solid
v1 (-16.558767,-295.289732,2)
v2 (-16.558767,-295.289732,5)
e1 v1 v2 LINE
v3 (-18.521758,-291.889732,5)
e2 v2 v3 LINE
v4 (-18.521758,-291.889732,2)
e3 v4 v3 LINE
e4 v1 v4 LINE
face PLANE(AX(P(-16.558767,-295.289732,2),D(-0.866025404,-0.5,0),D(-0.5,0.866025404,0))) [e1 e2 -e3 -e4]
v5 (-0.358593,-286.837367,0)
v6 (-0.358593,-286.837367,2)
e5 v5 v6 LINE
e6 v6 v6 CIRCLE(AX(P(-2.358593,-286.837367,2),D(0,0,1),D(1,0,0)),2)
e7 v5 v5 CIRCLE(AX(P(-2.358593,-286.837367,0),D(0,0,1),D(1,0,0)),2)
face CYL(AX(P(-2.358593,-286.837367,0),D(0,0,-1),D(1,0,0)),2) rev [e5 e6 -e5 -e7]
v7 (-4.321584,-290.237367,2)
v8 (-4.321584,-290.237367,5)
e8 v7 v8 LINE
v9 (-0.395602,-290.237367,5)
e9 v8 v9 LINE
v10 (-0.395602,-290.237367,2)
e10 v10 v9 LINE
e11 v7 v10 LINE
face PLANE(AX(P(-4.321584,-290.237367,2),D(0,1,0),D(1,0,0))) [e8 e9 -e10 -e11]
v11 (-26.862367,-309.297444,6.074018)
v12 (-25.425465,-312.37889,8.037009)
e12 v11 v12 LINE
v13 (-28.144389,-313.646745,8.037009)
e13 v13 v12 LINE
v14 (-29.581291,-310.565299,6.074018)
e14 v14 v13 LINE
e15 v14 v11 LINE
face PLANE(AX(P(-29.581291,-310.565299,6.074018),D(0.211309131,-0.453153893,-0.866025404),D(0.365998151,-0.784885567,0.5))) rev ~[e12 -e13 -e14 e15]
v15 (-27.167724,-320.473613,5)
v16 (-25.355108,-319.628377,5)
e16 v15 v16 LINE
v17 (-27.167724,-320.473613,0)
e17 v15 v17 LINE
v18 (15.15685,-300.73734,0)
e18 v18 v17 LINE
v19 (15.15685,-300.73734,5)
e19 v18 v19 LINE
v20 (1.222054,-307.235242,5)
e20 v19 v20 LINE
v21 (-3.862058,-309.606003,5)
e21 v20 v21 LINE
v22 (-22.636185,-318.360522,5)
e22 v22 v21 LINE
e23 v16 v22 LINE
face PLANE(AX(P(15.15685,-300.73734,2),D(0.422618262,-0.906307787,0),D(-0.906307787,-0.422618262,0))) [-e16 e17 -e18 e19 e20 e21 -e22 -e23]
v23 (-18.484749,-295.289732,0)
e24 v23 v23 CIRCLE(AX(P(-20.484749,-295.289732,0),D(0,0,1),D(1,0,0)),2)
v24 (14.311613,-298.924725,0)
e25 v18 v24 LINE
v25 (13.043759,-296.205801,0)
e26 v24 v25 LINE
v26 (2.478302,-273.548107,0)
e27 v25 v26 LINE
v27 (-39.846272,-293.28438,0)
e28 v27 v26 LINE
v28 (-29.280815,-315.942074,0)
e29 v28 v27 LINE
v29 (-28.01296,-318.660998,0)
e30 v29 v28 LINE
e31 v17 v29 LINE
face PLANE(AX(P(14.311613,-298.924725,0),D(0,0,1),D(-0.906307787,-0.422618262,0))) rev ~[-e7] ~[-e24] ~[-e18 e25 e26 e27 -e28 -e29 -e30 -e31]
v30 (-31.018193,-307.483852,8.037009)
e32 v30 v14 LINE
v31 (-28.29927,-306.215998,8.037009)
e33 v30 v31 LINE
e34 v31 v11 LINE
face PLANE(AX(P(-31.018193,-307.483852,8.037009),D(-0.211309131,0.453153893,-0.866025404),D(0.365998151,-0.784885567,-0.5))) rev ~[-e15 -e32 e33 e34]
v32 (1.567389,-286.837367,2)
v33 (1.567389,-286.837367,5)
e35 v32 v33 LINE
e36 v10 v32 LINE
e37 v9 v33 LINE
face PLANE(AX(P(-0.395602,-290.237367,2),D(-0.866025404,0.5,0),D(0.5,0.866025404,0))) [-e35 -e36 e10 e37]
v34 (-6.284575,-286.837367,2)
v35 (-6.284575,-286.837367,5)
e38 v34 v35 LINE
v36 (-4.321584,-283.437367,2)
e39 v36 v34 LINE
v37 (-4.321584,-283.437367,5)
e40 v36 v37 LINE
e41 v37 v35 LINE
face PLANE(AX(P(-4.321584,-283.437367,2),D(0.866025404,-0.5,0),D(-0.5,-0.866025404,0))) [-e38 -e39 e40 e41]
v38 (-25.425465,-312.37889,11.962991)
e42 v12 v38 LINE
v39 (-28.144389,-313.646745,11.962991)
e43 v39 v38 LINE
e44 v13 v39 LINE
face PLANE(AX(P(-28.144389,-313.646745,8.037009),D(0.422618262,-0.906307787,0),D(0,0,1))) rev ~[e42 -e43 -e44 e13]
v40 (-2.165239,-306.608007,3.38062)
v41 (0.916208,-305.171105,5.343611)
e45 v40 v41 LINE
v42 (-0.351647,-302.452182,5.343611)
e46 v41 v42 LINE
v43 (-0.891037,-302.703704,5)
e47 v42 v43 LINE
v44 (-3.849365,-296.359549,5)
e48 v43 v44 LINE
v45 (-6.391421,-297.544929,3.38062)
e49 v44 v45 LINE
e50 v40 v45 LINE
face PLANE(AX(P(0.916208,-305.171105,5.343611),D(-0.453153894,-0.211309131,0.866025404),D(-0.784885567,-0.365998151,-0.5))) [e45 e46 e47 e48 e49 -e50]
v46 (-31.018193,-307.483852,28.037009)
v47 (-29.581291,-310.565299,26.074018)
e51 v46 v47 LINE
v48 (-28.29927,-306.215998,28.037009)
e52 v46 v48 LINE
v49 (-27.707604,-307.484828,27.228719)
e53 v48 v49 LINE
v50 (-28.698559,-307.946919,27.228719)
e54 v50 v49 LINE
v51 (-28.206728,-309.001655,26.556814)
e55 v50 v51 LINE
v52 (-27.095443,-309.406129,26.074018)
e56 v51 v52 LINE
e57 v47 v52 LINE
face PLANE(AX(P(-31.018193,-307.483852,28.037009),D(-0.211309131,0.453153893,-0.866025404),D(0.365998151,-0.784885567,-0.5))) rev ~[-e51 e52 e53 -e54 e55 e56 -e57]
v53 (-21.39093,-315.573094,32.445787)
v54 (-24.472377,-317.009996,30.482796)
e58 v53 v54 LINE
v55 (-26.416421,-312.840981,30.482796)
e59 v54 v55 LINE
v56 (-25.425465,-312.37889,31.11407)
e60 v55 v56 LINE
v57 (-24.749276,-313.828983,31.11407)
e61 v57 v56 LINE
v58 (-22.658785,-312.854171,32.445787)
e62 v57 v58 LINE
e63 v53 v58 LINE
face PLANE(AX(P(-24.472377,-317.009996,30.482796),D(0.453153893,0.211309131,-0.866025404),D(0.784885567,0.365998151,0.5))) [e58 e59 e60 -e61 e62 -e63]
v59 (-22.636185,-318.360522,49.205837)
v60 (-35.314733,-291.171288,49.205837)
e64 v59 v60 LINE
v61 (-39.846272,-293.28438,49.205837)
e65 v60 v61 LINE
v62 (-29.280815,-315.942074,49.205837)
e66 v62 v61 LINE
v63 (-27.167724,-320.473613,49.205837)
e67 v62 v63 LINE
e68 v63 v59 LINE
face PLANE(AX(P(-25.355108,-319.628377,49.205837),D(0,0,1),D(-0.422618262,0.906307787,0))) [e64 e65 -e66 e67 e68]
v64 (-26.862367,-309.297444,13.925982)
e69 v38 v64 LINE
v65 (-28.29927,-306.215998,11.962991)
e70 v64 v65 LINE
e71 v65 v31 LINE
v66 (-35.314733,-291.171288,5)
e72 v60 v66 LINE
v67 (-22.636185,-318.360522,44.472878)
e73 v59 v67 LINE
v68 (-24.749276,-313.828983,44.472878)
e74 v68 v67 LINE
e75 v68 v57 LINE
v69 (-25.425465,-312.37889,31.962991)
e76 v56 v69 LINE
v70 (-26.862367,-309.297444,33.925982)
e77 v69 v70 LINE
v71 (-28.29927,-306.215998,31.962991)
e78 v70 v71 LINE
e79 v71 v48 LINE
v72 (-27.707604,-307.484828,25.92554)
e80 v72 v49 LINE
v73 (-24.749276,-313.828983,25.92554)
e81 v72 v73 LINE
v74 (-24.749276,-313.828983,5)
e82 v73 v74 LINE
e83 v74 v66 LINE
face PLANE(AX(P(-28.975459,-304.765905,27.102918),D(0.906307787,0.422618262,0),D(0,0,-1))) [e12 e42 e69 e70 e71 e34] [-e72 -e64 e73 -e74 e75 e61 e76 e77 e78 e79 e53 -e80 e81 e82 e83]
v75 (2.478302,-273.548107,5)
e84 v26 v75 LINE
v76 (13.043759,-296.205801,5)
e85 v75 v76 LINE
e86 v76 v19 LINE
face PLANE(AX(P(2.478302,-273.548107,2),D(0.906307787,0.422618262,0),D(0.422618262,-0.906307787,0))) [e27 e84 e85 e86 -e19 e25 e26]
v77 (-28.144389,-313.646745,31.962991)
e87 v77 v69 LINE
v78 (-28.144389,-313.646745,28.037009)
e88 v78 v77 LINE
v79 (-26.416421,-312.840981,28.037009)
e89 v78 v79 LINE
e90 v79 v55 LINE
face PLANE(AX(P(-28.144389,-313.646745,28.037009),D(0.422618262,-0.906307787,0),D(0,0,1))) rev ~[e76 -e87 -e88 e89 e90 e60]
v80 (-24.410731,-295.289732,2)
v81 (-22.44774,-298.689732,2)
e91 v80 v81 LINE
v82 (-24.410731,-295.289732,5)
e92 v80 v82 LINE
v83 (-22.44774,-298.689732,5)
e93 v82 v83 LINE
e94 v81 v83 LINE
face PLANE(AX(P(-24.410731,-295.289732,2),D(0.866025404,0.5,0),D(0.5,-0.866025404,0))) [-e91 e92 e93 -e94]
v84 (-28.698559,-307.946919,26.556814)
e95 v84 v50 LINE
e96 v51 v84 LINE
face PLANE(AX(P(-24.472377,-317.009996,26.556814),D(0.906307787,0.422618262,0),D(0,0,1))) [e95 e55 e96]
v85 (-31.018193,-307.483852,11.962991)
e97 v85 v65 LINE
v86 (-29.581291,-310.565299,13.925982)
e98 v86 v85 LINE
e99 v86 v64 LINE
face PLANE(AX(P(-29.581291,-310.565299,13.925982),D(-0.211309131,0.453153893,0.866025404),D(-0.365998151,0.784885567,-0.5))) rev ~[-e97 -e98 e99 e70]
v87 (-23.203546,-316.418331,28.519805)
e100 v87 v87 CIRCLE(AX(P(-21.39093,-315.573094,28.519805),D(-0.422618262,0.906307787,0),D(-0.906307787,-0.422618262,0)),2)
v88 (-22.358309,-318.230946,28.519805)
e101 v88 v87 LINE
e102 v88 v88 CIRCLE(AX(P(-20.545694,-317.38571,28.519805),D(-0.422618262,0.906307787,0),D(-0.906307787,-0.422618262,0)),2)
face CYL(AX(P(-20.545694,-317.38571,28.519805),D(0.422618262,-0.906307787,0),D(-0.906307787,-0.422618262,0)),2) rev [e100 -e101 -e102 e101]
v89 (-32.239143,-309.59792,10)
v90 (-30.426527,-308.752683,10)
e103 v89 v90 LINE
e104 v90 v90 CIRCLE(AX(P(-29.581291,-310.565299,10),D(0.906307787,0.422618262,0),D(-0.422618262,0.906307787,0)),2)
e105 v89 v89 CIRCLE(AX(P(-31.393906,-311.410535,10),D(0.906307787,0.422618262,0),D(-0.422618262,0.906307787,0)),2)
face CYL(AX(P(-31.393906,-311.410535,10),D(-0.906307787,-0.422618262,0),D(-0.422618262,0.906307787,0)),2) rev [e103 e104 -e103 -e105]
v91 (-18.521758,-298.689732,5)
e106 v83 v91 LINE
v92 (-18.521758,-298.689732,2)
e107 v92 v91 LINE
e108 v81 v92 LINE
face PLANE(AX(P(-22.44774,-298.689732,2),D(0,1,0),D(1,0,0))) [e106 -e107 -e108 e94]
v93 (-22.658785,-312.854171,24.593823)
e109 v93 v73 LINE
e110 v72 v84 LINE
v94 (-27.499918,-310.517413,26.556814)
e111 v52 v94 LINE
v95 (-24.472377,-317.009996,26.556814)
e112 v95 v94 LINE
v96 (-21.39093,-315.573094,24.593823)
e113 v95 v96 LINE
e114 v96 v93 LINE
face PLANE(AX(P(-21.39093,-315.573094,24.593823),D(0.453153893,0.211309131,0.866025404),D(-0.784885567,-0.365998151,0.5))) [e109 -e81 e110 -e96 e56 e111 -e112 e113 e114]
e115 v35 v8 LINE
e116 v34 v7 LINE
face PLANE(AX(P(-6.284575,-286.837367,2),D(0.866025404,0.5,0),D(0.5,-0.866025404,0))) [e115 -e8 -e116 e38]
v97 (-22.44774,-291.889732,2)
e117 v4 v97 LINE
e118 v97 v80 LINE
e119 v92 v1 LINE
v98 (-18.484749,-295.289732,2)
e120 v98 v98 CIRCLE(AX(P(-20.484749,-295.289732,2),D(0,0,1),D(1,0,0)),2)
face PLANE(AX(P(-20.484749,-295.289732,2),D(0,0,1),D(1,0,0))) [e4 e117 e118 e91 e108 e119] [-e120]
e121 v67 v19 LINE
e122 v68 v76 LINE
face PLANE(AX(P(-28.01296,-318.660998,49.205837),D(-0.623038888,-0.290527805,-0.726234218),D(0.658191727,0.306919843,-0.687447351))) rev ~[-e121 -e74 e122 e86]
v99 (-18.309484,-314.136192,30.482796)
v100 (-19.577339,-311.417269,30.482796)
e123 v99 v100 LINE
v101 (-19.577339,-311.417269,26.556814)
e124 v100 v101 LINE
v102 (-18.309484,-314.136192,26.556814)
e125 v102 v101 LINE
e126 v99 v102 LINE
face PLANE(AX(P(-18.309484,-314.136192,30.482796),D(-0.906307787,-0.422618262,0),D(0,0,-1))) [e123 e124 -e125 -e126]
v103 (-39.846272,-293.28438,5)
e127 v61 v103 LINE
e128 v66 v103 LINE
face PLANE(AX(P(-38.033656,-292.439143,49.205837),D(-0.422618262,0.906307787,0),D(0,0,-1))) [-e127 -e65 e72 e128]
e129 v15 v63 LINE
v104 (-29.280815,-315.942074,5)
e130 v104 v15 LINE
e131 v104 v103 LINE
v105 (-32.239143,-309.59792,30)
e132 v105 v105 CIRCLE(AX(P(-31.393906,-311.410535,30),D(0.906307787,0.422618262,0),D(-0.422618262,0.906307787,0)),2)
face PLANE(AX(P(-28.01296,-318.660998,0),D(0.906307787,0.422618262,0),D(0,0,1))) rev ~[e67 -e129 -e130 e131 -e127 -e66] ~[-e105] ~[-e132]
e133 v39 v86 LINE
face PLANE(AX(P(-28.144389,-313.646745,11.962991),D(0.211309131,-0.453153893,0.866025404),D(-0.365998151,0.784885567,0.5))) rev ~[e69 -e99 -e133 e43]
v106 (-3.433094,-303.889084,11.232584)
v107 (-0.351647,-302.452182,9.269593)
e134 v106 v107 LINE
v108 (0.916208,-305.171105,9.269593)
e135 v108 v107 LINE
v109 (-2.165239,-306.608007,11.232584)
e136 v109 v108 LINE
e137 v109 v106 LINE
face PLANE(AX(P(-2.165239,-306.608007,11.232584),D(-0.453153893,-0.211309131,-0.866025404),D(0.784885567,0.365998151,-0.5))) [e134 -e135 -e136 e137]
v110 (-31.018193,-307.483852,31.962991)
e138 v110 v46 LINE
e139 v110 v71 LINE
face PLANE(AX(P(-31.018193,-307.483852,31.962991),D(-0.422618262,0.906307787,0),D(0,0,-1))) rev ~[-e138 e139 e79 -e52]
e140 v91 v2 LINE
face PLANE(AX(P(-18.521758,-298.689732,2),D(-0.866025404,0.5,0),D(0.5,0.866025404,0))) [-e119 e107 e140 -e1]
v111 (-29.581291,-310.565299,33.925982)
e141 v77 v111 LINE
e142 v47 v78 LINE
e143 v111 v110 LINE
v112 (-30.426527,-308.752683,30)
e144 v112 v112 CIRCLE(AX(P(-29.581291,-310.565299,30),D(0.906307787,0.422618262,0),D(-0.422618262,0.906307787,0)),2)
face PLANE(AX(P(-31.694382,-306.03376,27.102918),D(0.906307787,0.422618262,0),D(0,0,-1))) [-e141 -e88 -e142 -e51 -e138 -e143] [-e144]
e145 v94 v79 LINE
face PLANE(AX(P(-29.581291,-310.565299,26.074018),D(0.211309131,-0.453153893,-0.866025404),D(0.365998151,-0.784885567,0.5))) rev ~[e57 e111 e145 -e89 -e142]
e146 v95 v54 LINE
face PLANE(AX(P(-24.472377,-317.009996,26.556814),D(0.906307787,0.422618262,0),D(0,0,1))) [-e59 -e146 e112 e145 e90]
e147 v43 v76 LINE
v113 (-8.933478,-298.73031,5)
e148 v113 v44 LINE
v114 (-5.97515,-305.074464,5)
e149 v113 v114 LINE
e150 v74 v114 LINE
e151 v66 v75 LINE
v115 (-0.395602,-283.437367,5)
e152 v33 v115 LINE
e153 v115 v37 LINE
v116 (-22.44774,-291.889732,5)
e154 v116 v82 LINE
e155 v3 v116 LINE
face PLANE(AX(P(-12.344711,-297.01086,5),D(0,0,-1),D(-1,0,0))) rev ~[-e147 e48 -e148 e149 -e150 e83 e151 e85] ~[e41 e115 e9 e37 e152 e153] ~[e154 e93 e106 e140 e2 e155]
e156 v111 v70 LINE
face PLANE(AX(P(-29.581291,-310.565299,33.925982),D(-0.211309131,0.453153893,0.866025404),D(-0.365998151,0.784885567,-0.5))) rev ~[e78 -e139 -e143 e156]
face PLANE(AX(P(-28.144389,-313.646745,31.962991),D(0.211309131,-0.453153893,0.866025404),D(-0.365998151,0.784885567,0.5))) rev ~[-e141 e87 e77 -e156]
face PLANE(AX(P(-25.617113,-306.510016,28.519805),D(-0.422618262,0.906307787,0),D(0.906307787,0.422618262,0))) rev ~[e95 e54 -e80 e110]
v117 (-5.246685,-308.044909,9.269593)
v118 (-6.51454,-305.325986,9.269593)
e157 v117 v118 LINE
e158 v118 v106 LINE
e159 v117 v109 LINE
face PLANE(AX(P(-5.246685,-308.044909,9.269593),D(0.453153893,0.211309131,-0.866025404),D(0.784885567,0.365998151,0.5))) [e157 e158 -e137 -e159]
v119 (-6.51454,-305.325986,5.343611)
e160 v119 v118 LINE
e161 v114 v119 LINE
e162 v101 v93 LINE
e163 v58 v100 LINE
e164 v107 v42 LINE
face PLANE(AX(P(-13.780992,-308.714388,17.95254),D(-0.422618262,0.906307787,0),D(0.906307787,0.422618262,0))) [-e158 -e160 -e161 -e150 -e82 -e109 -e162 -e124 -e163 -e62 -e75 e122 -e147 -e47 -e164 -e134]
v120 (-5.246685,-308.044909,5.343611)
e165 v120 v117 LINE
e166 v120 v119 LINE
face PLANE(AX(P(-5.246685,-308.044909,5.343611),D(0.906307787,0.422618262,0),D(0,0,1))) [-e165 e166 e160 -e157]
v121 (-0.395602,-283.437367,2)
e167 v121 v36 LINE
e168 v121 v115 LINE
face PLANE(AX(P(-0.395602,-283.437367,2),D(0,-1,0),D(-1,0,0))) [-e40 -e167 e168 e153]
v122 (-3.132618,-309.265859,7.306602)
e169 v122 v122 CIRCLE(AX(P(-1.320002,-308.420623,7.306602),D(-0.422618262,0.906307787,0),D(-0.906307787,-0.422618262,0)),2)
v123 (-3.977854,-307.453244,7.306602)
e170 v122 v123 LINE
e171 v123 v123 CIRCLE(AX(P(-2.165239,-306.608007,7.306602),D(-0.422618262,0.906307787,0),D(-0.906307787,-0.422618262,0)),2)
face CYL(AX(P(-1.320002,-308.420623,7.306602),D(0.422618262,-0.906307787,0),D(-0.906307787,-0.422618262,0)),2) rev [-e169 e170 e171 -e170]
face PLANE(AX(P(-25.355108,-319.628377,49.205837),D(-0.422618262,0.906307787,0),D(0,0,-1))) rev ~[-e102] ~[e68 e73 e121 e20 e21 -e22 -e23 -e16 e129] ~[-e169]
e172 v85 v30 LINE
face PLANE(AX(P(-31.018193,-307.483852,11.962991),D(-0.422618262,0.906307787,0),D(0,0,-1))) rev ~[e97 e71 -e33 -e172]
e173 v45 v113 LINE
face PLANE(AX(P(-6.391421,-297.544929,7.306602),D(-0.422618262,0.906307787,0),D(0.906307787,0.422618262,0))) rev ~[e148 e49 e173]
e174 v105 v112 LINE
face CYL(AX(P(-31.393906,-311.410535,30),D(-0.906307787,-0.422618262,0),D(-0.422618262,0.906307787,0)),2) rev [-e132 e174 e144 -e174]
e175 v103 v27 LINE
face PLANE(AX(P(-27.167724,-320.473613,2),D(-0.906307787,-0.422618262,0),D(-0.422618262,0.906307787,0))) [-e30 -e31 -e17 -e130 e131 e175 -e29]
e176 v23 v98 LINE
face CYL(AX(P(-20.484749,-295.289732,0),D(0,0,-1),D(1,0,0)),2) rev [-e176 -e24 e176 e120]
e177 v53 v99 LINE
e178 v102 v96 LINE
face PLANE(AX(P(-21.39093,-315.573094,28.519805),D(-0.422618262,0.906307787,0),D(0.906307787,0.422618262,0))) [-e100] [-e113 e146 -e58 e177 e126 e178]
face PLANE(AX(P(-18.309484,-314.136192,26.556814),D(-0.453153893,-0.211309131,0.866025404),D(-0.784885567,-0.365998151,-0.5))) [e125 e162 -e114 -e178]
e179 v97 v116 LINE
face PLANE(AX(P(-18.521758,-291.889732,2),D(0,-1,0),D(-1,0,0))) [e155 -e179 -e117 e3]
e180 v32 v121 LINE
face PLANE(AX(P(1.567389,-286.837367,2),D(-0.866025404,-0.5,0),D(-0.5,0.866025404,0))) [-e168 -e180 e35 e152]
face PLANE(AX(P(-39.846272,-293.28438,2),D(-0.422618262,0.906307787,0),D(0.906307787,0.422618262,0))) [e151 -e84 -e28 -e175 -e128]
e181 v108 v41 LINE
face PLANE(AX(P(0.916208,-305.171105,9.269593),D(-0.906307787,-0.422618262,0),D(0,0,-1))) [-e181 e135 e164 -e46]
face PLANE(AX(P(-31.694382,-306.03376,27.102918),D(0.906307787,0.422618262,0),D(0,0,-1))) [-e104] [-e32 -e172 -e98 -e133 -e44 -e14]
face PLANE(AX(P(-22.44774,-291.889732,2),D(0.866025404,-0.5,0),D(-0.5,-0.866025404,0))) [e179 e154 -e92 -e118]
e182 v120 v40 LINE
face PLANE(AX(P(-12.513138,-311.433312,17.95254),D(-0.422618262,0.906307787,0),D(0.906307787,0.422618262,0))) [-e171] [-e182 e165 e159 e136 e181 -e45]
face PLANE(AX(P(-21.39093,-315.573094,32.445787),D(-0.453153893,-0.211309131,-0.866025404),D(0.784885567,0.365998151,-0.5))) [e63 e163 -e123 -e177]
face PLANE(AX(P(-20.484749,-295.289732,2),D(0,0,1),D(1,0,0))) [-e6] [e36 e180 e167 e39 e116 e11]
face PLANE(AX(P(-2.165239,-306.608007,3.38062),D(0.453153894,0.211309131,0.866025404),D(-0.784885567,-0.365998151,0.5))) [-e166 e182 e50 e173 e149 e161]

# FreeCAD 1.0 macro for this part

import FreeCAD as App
import Part
import Sketcher
Q = App.Units.Quantity


def add_polygon(sketch, points):
    """Adds a closed chain of lines whose ends are joined by coincident constraints."""
    first, n = sketch.GeometryCount, len(points)
    for a, b in zip(points, points[1:] + points[:1]):
        sketch.addGeometry(Part.LineSegment(App.Vector(*a, 0), App.Vector(*b, 0)), False)
    for i in range(n):
        sketch.addConstraint(Sketcher.Constraint("Coincident", first + i, 2, first + (i + 1) % n, 1))

doc = App.newDocument("Part")
body = doc.addObject("PartDesign::Body", "Body")

sketch1 = body.newObject("Sketcher::SketchObject", "Sketch")
sketch1.AttachmentSupport = (doc.getObject("XY_Plane"), [""])
sketch1.MapMode = "FlatFace"
add_polygon(sketch1, [(-27.2, -320.5), (15.2, -300.7), (2.5, -273.5), (-39.8, -293.3)])
sketch1.addGeometry(Part.Circle(App.Vector(-20.5, -295.3, 0), App.Vector(0, 0, 1), 2), False)
sketch1.addGeometry(Part.Circle(App.Vector(-2.4, -286.8, 0), App.Vector(0, 0, 1), 2), False)
sketch1.addConstraint(Sketcher.Constraint("Equal", 4, 5))
sketch1.addConstraint(Sketcher.Constraint("Perpendicular", 0, 1))
sketch1.addConstraint(Sketcher.Constraint("Perpendicular", 1, 2))
sketch1.addConstraint(Sketcher.Constraint("Perpendicular", 2, 3))
sketch1.addConstraint(Sketcher.Constraint("Diameter", 4, Q("4 mm")))
sketch1.addConstraint(Sketcher.Constraint("Angle", 0, Q("25 deg")))
sketch1.addConstraint(Sketcher.Constraint("Distance", 1, Q("30 mm")))
sketch1.addConstraint(Sketcher.Constraint("Distance", 0, Q("46.7 mm")))
sketch1.addConstraint(Sketcher.Constraint("DistanceX", 4, 3, 0, 2, Q("35.641599 mm")))
sketch1.addConstraint(Sketcher.Constraint("DistanceX", 4, 3, -1, 1, Q("20.484749 mm")))
sketch1.addConstraint(Sketcher.Constraint("DistanceY", 0, 2, -1, 1, Q("300.73734 mm")))
sketch1.addConstraint(Sketcher.Constraint("DistanceY", 5, 3, 1, 2, Q("13.28926 mm")))
sketch1.addConstraint(Sketcher.Constraint("DistanceX", 2, 2, 5, 3, Q("37.487678 mm")))
sketch1.addConstraint(Sketcher.Constraint("DistanceY", 3, 2, 4, 3, Q("25.183881 mm")))
pad1 = body.newObject("PartDesign::Pad", "Pad")
pad1.Profile = sketch1
pad1.Length = 2

sketch2 = body.newObject("Sketcher::SketchObject", "Sketch001")
sketch2.AttachmentSupport = (doc.getObject("XY_Plane"), [""])
sketch2.MapMode = "FlatFace"
sketch2.AttachmentOffset = App.Placement(App.Vector(0, 0, 2), App.Rotation())
add_polygon(sketch2, [(-27.2, -320.5), (15.2, -300.7), (2.5, -273.5), (-39.8, -293.3)])
add_polygon(sketch2, [(-22.4, -291.9), (-18.5, -291.9), (-16.6, -295.3), (-18.5, -298.7), (-22.4, -298.7), (-24.4, -295.3)])
add_polygon(sketch2, [(-4.3, -283.4), (-0.4, -283.4), (1.6, -286.8), (-0.4, -290.2), (-4.3, -290.2), (-6.3, -286.8)])
sketch2.addConstraint(Sketcher.Constraint("Horizontal", 4))
sketch2.addConstraint(Sketcher.Constraint("Horizontal", 7))
sketch2.addConstraint(Sketcher.Constraint("Horizontal", 10))
sketch2.addConstraint(Sketcher.Constraint("Horizontal", 13))
sketch2.addConstraint(Sketcher.Constraint("Perpendicular", 0, 1))
sketch2.addConstraint(Sketcher.Constraint("Perpendicular", 1, 2))
sketch2.addConstraint(Sketcher.Constraint("Perpendicular", 2, 3))
sketch2.addConstraint(Sketcher.Constraint("Parallel", 5, 8))
sketch2.addConstraint(Sketcher.Constraint("Parallel", 6, 9))
sketch2.addConstraint(Sketcher.Constraint("Parallel", 8, 11))
sketch2.addConstraint(Sketcher.Constraint("Parallel", 9, 12))
sketch2.addConstraint(Sketcher.Constraint("Parallel", 11, 14))
sketch2.addConstraint(Sketcher.Constraint("Parallel", 12, 15))
sketch2.addConstraint(Sketcher.Constraint("Horizontal", 5, 2, 8, 2))
sketch2.addConstraint(Sketcher.Constraint("Horizontal", 11, 2, 14, 2))
sketch2.addConstraint(Sketcher.Constraint("Vertical", 4, 2, 6, 2))
sketch2.addConstraint(Sketcher.Constraint("Vertical", 7, 2, 9, 2))
sketch2.addConstraint(Sketcher.Constraint("Vertical", 10, 2, 12, 2))
sketch2.addConstraint(Sketcher.Constraint("Equal", 7, 10))
sketch2.addConstraint(Sketcher.Constraint("Equal", 9, 11))
sketch2.addConstraint(Sketcher.Constraint("Angle", 0, Q("25 deg")))
sketch2.addConstraint(Sketcher.Constraint("Angle", 5, Q("-60 deg")))
sketch2.addConstraint(Sketcher.Constraint("Distance", 1, Q("30 mm")))
sketch2.addConstraint(Sketcher.Constraint("Distance", 0, Q("46.7 mm")))
sketch2.addConstraint(Sketcher.Constraint("DistanceY", 5, 2, 4, 2, Q("3.4 mm")))
sketch2.addConstraint(Sketcher.Constraint("DistanceX", 4, 1, 4, 2, Q("3.925982 mm")))
sketch2.addConstraint(Sketcher.Constraint("DistanceX", -1, 1, 0, 2, Q("15.15685 mm")))
sketch2.addConstraint(Sketcher.Constraint("DistanceY", 0, 2, -1, 1, Q("300.73734 mm")))
sketch2.addConstraint(Sketcher.Constraint("DistanceX", 4, 2, -1, 1, Q("18.521758 mm")))
sketch2.addConstraint(Sketcher.Constraint("DistanceX", -1, 1, 11, 2, Q("1.567389 mm")))
sketch2.addConstraint(Sketcher.Constraint("DistanceY", 3, 2, 4, 2, Q("28.583881 mm")))
sketch2.addConstraint(Sketcher.Constraint("DistanceY", 10, 2, 1, 2, Q("9.88926 mm")))
pad2 = body.newObject("PartDesign::Pad", "Pad001")
pad2.Profile = sketch2
pad2.Length = 3

sketch3 = body.newObject("Sketcher::SketchObject", "Sketch002")
sketch3.Placement = App.Placement(App.Vector(117.896192, -252.829199, 0), App.Rotation(App.Vector(0.906307787, 0.422618262, 0), App.Vector(0, 0, -1), App.Vector(-0.422618262, 0.906307787, 0), "ZXY"))
add_polygon(sketch3, [(-113.4, 0), (-160.1, 0), (-160.1, -49.2), (-113.4, -5)])
add_polygon(sketch3, [(-131.5, -3.4), (-128.7, -5), (-134.3, -5)])
sketch3.addGeometry(Part.Circle(App.Vector(-152.8, -28.5, 0), App.Vector(0, 0, 1), 2), False)
sketch3.addGeometry(Part.Circle(App.Vector(-131.5, -7.3, 0), App.Vector(0, 0, 1), 2), False)
sketch3.addConstraint(Sketcher.Constraint("Horizontal", 0))
sketch3.addConstraint(Sketcher.Constraint("Vertical", 1))
sketch3.addConstraint(Sketcher.Constraint("Vertical", 3))
sketch3.addConstraint(Sketcher.Constraint("Horizontal", 5))
sketch3.addConstraint(Sketcher.Constraint("Equal", 7, 8))
sketch3.addConstraint(Sketcher.Constraint("PointOnObject", 0, 2, -1))
sketch3.addConstraint(Sketcher.Constraint("Horizontal", 2, 2, 4, 2))
sketch3.addConstraint(Sketcher.Constraint("Vertical", 8, 3, 6, 2))
sketch3.addConstraint(Sketcher.Constraint("Equal", 4, 6))
sketch3.addConstraint(Sketcher.Constraint("Diameter", 7, Q("4 mm")))
sketch3.addConstraint(Sketcher.Constraint("DistanceY", 3, 1, 3, 2, Q("5 mm")))
sketch3.addConstraint(Sketcher.Constraint("Angle", 4, Q("-30 deg")))
sketch3.addConstraint(Sketcher.Constraint("DistanceX", 0, 2, 0, 1, Q("46.7 mm")))
sketch3.addConstraint(Sketcher.Constraint("DistanceY", 8, 3, -1, 1, Q("7.306602 mm")))
sketch3.addConstraint(Sketcher.Constraint("DistanceX", 0, 2, 7, 3, Q("7.306602 mm")))
sketch3.addConstraint(Sketcher.Constraint("Distance", 4, Q("3.23876 mm")))
sketch3.addConstraint(Sketcher.Constraint("DistanceY", 1, 2, 1, 1, Q("49.205837 mm")))
sketch3.addConstraint(Sketcher.Constraint("DistanceX", 7, 3, -1, 1, Q("152.753719 mm")))
sketch3.addConstraint(Sketcher.Constraint("DistanceY", 1, 2, 7, 3, Q("20.686032 mm")))
sketch3.addConstraint(Sketcher.Constraint("DistanceX", 8, 3, -1, 1, Q("131.540516 mm")))
pad3 = body.newObject("PartDesign::Pad", "Pad002")
pad3.Profile = sketch3
pad3.Length = 2

sketch4 = body.newObject("Sketcher::SketchObject", "Sketch003")
sketch4.Placement = App.Placement(App.Vector(117.050955, -251.016583, 0), App.Rotation(App.Vector(0.906307787, 0.422618262, 0), App.Vector(0, 0, -1), App.Vector(-0.422618262, 0.906307787, 0), "ZXY"))
add_polygon(sketch4, [(-113.4, 0), (-160.1, 0), (-160.1, -49.2), (-113.4, -5)])
add_polygon(sketch4, [(-149.4, -26.6), (-149.4, -30.5), (-152.8, -32.4), (-156.2, -30.5), (-156.2, -26.6), (-152.8, -24.6)])
add_polygon(sketch4, [(-131.5, -3.4), (-128.1, -5.3), (-128.1, -9.3), (-131.5, -11.2), (-134.9, -9.3), (-134.9, -5.3)])
sketch4.addConstraint(Sketcher.Constraint("Horizontal", 0))
sketch4.addConstraint(Sketcher.Constraint("Vertical", 1))
sketch4.addConstraint(Sketcher.Constraint("Vertical", 3))
sketch4.addConstraint(Sketcher.Constraint("Vertical", 4))
sketch4.addConstraint(Sketcher.Constraint("Vertical", 7))
sketch4.addConstraint(Sketcher.Constraint("Vertical", 11))
sketch4.addConstraint(Sketcher.Constraint("Vertical", 14))
sketch4.addConstraint(Sketcher.Constraint("PointOnObject", 0, 2, -1))
sketch4.addConstraint(Sketcher.Constraint("Parallel", 5, 8))
sketch4.addConstraint(Sketcher.Constraint("Parallel", 6, 9))
sketch4.addConstraint(Sketcher.Constraint("Parallel", 9, 10))
sketch4.addConstraint(Sketcher.Constraint("Parallel", 8, 12))
sketch4.addConstraint(Sketcher.Constraint("Parallel", 10, 13))
sketch4.addConstraint(Sketcher.Constraint("Parallel", 12, 15))
sketch4.addConstraint(Sketcher.Constraint("Horizontal", 4, 2, 6, 2))
sketch4.addConstraint(Sketcher.Constraint("Horizontal", 7, 2, 9, 2))
sketch4.addConstraint(Sketcher.Constraint("Horizontal", 11, 2, 13, 2))
sketch4.addConstraint(Sketcher.Constraint("Horizontal", 10, 2, 14, 2))
sketch4.addConstraint(Sketcher.Constraint("Vertical", 5, 2, 8, 2))
sketch4.addConstraint(Sketcher.Constraint("Equal", 7, 11))
sketch4.addConstraint(Sketcher.Constraint("Equal", 9, 10))
sketch4.addConstraint(Sketcher.Constraint("DistanceY", 3, 1, 3, 2, Q("5 mm")))
sketch4.addConstraint(Sketcher.Constraint("Angle", 5, Q("-150 deg")))
sketch4.addConstraint(Sketcher.Constraint("DistanceX", 0, 2, 0, 1, Q("46.7 mm")))
sketch4.addConstraint(Sketcher.Constraint("DistanceX", 5, 2, 4, 2, Q("3.4 mm")))
sketch4.addConstraint(Sketcher.Constraint("DistanceY", 4, 2, 4, 1, Q("3.925982 mm")))
sketch4.addConstraint(Sketcher.Constraint("DistanceX", 1, 2, 4, 2, Q("10.706602 mm")))
sketch4.addConstraint(Sketcher.Constraint("DistanceY", 1, 2, 1, 1, Q("49.205837 mm")))
sketch4.addConstraint(Sketcher.Constraint("DistanceX", 0, 2, -1, 1, Q("160.060321 mm")))
sketch4.addConstraint(Sketcher.Constraint("DistanceY", 10, 2, -1, 1, Q("5.343611 mm")))
sketch4.addConstraint(Sketcher.Constraint("DistanceY", 1, 2, 4, 2, Q("18.723041 mm")))
sketch4.addConstraint(Sketcher.Constraint("DistanceX", 10, 2, -1, 1, Q("128.140516 mm")))
pad4 = body.newObject("PartDesign::Pad", "Pad003")
pad4.Profile = sketch4
pad4.Length = 3

sketch5 = body.newObject("Sketcher::SketchObject", "Sketch004")
sketch5.Placement = App.Placement(App.Vector(-145.063915, -67.644415, 0), App.Rotation(App.Vector(0, 0, -1), App.Vector(-0.422618262, 0.906307787, 0), App.Vector(0.906307787, 0.422618262, 0), "ZXY"))
add_polygon(sketch5, [(-49.2, -249), (-49.2, -279), (-5, -279), (-5, -249)])
sketch5.addGeometry(Part.Circle(App.Vector(-30, -269, 0), App.Vector(0, 0, 1), 2), False)
sketch5.addGeometry(Part.Circle(App.Vector(-10, -269, 0), App.Vector(0, 0, 1), 2), False)
sketch5.addConstraint(Sketcher.Constraint("Vertical", 0))
sketch5.addConstraint(Sketcher.Constraint("Horizontal", 1))
sketch5.addConstraint(Sketcher.Constraint("Vertical", 2))
sketch5.addConstraint(Sketcher.Constraint("Horizontal", 3))
sketch5.addConstraint(Sketcher.Constraint("Equal", 4, 5))
sketch5.addConstraint(Sketcher.Constraint("Horizontal", 4, 3, 5, 3))
sketch5.addConstraint(Sketcher.Constraint("Diameter", 4, Q("4 mm")))
sketch5.addConstraint(Sketcher.Constraint("DistanceY", 0, 2, 0, 1, Q("30 mm")))
sketch5.addConstraint(Sketcher.Constraint("DistanceX", 4, 3, -1, 1, Q("30 mm")))
sketch5.addConstraint(Sketcher.Constraint("DistanceX", 5, 3, -1, 1, Q("10 mm")))
sketch5.addConstraint(Sketcher.Constraint("DistanceX", 1, 2, -1, 1, Q("5 mm")))
sketch5.addConstraint(Sketcher.Constraint("DistanceY", 0, 2, 4, 3, Q("10 mm")))
sketch5.addConstraint(Sketcher.Constraint("DistanceX", 1, 1, 1, 2, Q("44.205837 mm")))
sketch5.addConstraint(Sketcher.Constraint("DistanceY", 4, 3, -1, 1, Q("268.966155 mm")))
pad5 = body.newObject("PartDesign::Pad", "Pad004")
pad5.Profile = sketch5
pad5.Length = 2

sketch6 = body.newObject("Sketcher::SketchObject", "Sketch005")
sketch6.Placement = App.Placement(App.Vector(-143.2513, -66.799178, 0), App.Rotation(App.Vector(0, 0, -1), App.Vector(-0.422618262, 0.906307787, 0), App.Vector(0.906307787, 0.422618262, 0), "ZXY"))
add_polygon(sketch6, [(-49.2, -249), (-49.2, -279), (-5, -279), (-5, -249)])
add_polygon(sketch6, [(-28, -272.4), (-32, -272.4), (-33.9, -269), (-32, -265.6), (-28, -265.6), (-26.1, -269)])
add_polygon(sketch6, [(-8, -272.4), (-12, -272.4), (-13.9, -269), (-12, -265.6), (-8, -265.6), (-6.1, -269)])
sketch6.addConstraint(Sketcher.Constraint("Vertical", 0))
sketch6.addConstraint(Sketcher.Constraint("Horizontal", 1))
sketch6.addConstraint(Sketcher.Constraint("Vertical", 2))
sketch6.addConstraint(Sketcher.Constraint("Horizontal", 3))
sketch6.addConstraint(Sketcher.Constraint("Horizontal", 4))
sketch6.addConstraint(Sketcher.Constraint("Horizontal", 7))
sketch6.addConstraint(Sketcher.Constraint("Horizontal", 10))
sketch6.addConstraint(Sketcher.Constraint("Horizontal", 13))
sketch6.addConstraint(Sketcher.Constraint("Parallel", 5, 8))
sketch6.addConstraint(Sketcher.Constraint("Parallel", 6, 9))
sketch6.addConstraint(Sketcher.Constraint("Parallel", 8, 11))
sketch6.addConstraint(Sketcher.Constraint("Parallel", 9, 12))
sketch6.addConstraint(Sketcher.Constraint("Parallel", 11, 14))
sketch6.addConstraint(Sketcher.Constraint("Parallel", 12, 15))
sketch6.addConstraint(Sketcher.Constraint("Horizontal", 5, 2, 8, 2))
sketch6.addConstraint(Sketcher.Constraint("Horizontal", 9, 2, 10, 2))
sketch6.addConstraint(Sketcher.Constraint("Horizontal", 8, 2, 11, 2))
sketch6.addConstraint(Sketcher.Constraint("Horizontal", 7, 2, 12, 2))
sketch6.addConstraint(Sketcher.Constraint("Horizontal", 11, 2, 14, 2))
sketch6.addConstraint(Sketcher.Constraint("Vertical", 4, 2, 6, 2))
sketch6.addConstraint(Sketcher.Constraint("Vertical", 7, 2, 9, 2))
sketch6.addConstraint(Sketcher.Constraint("Equal", 7, 10))
sketch6.addConstraint(Sketcher.Constraint("DistanceY", 0, 2, 0, 1, Q("30 mm")))
sketch6.addConstraint(Sketcher.Constraint("Angle", 5, Q("120 deg")))
sketch6.addConstraint(Sketcher.Constraint("DistanceX", 1, 2, -1, 1, Q("5 mm")))
sketch6.addConstraint(Sketcher.Constraint("DistanceY", 0, 2, 5, 2, Q("10 mm")))
sketch6.addConstraint(Sketcher.Constraint("DistanceX", 4, 2, 10, 2, Q("20 mm")))
sketch6.addConstraint(Sketcher.Constraint("DistanceY", 0, 2, 4, 2, Q("6.6 mm")))
sketch6.addConstraint(Sketcher.Constraint("DistanceX", 4, 2, 4, 1, Q("3.925982 mm")))
sketch6.addConstraint(Sketcher.Constraint("DistanceX", 1, 1, 1, 2, Q("44.205837 mm")))
sketch6.addConstraint(Sketcher.Constraint("DistanceX", 4, 2, -1, 1, Q("31.962991 mm")))
sketch6.addConstraint(Sketcher.Constraint("DistanceY", 0, 2, -1, 1, Q("278.966155 mm")))
pad6 = body.newObject("PartDesign::Pad", "Pad005")
pad6.Profile = sketch6
pad6.Length = 3

sketch7 = body.newObject("Sketcher::SketchObject", "Sketch006")
sketch7.Placement = App.Placement(App.Vector(117.050955, -251.016583, 0), App.Rotation(App.Vector(0.906307787, 0.422618262, 0), App.Vector(0, 0, -1), App.Vector(-0.422618262, 0.906307787, 0), "ZXY"))
add_polygon(sketch7, [(-128.1, -5.3), (-131.5, -3.4), (-134.9, -5.3), (-134.9, -9.3), (-131.5, -11.2), (-128.1, -9.3)])
sketch7.addGeometry(Part.Circle(App.Vector(-131.5, -7.3, 0), App.Vector(0, 0, 1), 2), False)
add_polygon(sketch7, [(-149.4, -30.5), (-149.4, -26.6), (-152.8, -24.6), (-156.2, -26.6), (-156.2, -30.5), (-152.8, -32.4)])
sketch7.addGeometry(Part.Circle(App.Vector(-152.8, -28.5, 0), App.Vector(0, 0, 1), 2), False)
sketch7.addConstraint(Sketcher.Constraint("Vertical", 2))
sketch7.addConstraint(Sketcher.Constraint("Vertical", 5))
sketch7.addConstraint(Sketcher.Constraint("Vertical", 7))
sketch7.addConstraint(Sketcher.Constraint("Vertical", 10))
sketch7.addConstraint(Sketcher.Constraint("Equal", 6, 13))
sketch7.addConstraint(Sketcher.Constraint("Parallel", 0, 3))
sketch7.addConstraint(Sketcher.Constraint("Parallel", 1, 4))
sketch7.addConstraint(Sketcher.Constraint("Parallel", 3, 8))
sketch7.addConstraint(Sketcher.Constraint("Parallel", 4, 9))
sketch7.addConstraint(Sketcher.Constraint("Parallel", 8, 11))
sketch7.addConstraint(Sketcher.Constraint("Parallel", 9, 12))
sketch7.addConstraint(Sketcher.Constraint("Horizontal", 2, 2, 4, 2))
sketch7.addConstraint(Sketcher.Constraint("Horizontal", 1, 2, 5, 2))
sketch7.addConstraint(Sketcher.Constraint("Horizontal", 7, 2, 9, 2))
sketch7.addConstraint(Sketcher.Constraint("Horizontal", 10, 2, 12, 2))
sketch7.addConstraint(Sketcher.Constraint("Vertical", 6, 3, 0, 2))
sketch7.addConstraint(Sketcher.Constraint("Vertical", 0, 2, 3, 2))
sketch7.addConstraint(Sketcher.Constraint("Vertical", 13, 3, 8, 2))
sketch7.addConstraint(Sketcher.Constraint("Equal", 5, 7))
sketch7.addConstraint(Sketcher.Constraint("Equal", 4, 8))
sketch7.addConstraint(Sketcher.Constraint("Diameter", 6, Q("4 mm")))
sketch7.addConstraint(Sketcher.Constraint("Angle", 0, Q("150 deg")))
sketch7.addConstraint(Sketcher.Constraint("DistanceX", 1, 2, 6, 3, Q("3.4 mm")))
sketch7.addConstraint(Sketcher.Constraint("DistanceY", 2, 2, 2, 1, Q("3.925982 mm")))
sketch7.addConstraint(Sketcher.Constraint("DistanceY", 6, 3, -1, 1, Q("7.306602 mm")))
sketch7.addConstraint(Sketcher.Constraint("DistanceX", 13, 3, -1, 1, Q("152.753719 mm")))
sketch7.addConstraint(Sketcher.Constraint("DistanceY", 0, 2, -1, 1, Q("3.38062 mm")))
sketch7.addConstraint(Sketcher.Constraint("DistanceY", 13, 3, 3, 2, Q("17.287222 mm")))
sketch7.addConstraint(Sketcher.Constraint("DistanceY", 13, 3, 7, 2, Q("1.962991 mm")))
sketch7.addConstraint(Sketcher.Constraint("DistanceX", 6, 3, -1, 1, Q("131.540516 mm")))
pocket1 = body.newObject("PartDesign::Pocket", "Pocket")
pocket1.Profile = sketch7
pocket1.Length = 10
pocket1.Reversed = True

doc.recompute()
